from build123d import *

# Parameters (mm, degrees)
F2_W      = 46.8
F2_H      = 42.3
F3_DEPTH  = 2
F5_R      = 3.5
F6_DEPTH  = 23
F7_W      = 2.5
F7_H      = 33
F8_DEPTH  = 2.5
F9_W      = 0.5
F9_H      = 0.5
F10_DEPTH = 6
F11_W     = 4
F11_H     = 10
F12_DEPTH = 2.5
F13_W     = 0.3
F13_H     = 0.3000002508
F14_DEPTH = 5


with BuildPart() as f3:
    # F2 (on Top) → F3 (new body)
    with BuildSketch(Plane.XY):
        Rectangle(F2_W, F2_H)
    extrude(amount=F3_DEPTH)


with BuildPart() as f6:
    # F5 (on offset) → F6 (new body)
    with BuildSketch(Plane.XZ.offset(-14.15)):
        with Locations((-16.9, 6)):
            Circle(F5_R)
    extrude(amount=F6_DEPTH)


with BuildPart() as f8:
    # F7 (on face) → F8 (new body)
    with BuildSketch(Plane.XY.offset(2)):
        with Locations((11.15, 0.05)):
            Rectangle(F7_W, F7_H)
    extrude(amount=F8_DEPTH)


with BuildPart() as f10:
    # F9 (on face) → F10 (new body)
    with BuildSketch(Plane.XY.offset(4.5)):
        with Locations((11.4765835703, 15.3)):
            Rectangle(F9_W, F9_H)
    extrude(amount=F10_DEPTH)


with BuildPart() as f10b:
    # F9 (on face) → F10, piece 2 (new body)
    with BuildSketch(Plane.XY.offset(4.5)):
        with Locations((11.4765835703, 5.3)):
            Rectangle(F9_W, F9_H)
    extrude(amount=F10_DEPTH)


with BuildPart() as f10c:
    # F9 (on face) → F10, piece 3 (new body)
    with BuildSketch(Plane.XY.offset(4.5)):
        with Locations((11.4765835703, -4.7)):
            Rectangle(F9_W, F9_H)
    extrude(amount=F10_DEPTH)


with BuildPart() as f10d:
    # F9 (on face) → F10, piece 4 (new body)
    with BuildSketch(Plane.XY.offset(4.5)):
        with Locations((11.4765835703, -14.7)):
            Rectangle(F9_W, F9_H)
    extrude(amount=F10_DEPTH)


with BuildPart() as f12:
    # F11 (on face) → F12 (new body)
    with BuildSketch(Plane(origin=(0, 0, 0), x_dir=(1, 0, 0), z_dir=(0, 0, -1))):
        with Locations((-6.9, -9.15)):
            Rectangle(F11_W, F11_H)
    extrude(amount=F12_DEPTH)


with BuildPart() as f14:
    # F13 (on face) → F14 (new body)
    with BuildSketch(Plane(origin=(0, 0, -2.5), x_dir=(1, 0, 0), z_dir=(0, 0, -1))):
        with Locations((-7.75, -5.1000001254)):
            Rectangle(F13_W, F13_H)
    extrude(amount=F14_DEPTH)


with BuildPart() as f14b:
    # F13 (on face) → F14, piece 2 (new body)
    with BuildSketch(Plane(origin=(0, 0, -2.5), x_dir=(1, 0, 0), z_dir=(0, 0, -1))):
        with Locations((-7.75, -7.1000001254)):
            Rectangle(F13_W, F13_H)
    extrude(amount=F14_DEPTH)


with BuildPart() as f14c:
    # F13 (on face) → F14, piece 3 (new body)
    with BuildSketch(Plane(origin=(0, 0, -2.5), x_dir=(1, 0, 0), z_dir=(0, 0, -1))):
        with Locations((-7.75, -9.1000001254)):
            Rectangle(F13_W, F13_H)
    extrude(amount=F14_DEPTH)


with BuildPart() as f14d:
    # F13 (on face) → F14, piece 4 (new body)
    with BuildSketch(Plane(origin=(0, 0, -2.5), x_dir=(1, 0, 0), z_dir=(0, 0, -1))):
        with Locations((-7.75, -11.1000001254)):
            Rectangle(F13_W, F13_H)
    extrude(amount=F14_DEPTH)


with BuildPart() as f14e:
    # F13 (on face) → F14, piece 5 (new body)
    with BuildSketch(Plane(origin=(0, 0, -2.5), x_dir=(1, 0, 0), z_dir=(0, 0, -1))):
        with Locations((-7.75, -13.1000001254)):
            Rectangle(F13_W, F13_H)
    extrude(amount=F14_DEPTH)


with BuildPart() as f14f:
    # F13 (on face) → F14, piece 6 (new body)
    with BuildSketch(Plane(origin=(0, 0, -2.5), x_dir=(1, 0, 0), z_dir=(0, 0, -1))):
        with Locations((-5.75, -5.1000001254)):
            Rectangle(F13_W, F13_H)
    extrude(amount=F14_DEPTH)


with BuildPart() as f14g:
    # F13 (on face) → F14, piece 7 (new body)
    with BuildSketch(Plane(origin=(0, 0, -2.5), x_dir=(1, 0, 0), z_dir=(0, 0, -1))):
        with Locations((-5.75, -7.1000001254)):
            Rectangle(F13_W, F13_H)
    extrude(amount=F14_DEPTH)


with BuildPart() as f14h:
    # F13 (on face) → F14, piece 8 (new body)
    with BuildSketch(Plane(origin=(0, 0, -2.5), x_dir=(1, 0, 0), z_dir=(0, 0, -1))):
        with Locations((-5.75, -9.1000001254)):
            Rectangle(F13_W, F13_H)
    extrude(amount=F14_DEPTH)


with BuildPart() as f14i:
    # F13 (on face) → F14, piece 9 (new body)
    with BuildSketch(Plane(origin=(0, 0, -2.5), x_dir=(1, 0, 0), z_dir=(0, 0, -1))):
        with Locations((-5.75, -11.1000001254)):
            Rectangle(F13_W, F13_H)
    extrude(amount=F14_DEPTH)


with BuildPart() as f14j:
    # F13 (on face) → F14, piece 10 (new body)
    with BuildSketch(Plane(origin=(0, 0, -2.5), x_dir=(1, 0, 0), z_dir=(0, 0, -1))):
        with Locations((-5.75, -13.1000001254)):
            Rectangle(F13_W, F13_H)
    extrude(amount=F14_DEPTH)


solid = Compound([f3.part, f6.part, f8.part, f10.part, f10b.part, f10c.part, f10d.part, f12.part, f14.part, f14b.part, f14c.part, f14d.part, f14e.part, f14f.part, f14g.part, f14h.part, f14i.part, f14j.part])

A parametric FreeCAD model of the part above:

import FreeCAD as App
import Part
import Sketcher
from FreeCAD import Vector


def add_polygon(sketch, points):
    """Adds a closed chain of lines whose ends are joined by coincident constraints."""
    first, n = sketch.GeometryCount, len(points)
    for a, b in zip(points, points[1:] + points[:1]):
        sketch.addGeometry(Part.LineSegment(App.Vector(*a, 0), App.Vector(*b, 0)), False)
    for i in range(n):
        sketch.addConstraint(Sketcher.Constraint("Coincident", first + i, 2, first + (i + 1) % n, 1))

doc = App.newDocument("Part")
params = doc.addObject("Spreadsheet::Sheet", "Params")
for row, (alias, value) in enumerate([
    ("sketch1_width", "46.8 mm"),
    ("sketch1_height", "42.3 mm"),
    ("pad1_length", "2 mm"),
    ("sketch2_diameter", "7 mm"),
    ("pad2_length", "23 mm"),
    ("sketch3_height", "33 mm"),
    ("sketch3_width", "2.5 mm"),
    ("pad3_length", "2.5 mm"),
    ("sketch4_width", "0.5 mm"),
    ("pad4_length", "6 mm"),
    ("sketch5_width", "0.5 mm"),
    ("pad5_length", "6 mm"),
    ("sketch6_width", "0.5 mm"),
    ("pad6_length", "6 mm"),
    ("sketch7_width", "0.5 mm"),
    ("pad7_length", "6 mm"),
    ("sketch8_width", "4 mm"),
    ("sketch8_height", "10 mm"),
    ("pad8_length", "2.5 mm"),
    ("sketch9_width", "0.3 mm"),
    ("pad9_length", "5 mm"),
    ("sketch10_width", "0.3 mm"),
    ("pad10_length", "5 mm"),
    ("sketch11_width", "0.3 mm"),
    ("pad11_length", "5 mm"),
    ("sketch12_width", "0.3 mm"),
    ("pad12_length", "5 mm"),
    ("sketch13_width", "0.3 mm"),
    ("pad13_length", "5 mm"),
    ("sketch14_width", "0.3 mm"),
    ("pad14_length", "5 mm"),
    ("sketch15_width", "0.3 mm"),
    ("pad15_length", "5 mm"),
    ("sketch16_width", "0.3 mm"),
    ("pad16_length", "5 mm"),
    ("sketch17_width", "0.3 mm"),
    ("pad17_length", "5 mm"),
    ("sketch18_width", "0.3 mm"),
    ("pad18_length", "5 mm"),
], start=1):
    params.set(f"A{row}", alias)
    params.set(f"B{row}", "=" + value)
    params.setAlias(f"B{row}", alias)

body = doc.addObject("PartDesign::Body", "Body")

# Sketch on XY plane
sketch1 = body.newObject("Sketcher::SketchObject", "Sketch")
sketch1.AttachmentSupport = (doc.getObject("XY_Plane"), [""])
sketch1.MapMode = "FlatFace"
add_polygon(sketch1, [(-23.4, 21.15), (-23.4, -21.15), (23.4, -21.15), (23.4, 21.15)])  # lines 0-3
sketch1.addConstraint(Sketcher.Constraint("Vertical", 0))
sketch1.addConstraint(Sketcher.Constraint("Horizontal", 1))
sketch1.addConstraint(Sketcher.Constraint("Vertical", 2))
sketch1.addConstraint(Sketcher.Constraint("Horizontal", 3))
sketch1.addConstraint(Sketcher.Constraint("Symmetric", 0, 2, 2, 2, -1, 1))
sketch1.addConstraint(Sketcher.Constraint("DistanceX", 1, 1, 1, 2, 46.8))
sketch1.addConstraint(Sketcher.Constraint("DistanceY", 0, 2, 0, 1, 42.3))
sketch1.setExpression("Constraints[9]", "Params.sketch1_width")
sketch1.setExpression("Constraints[10]", "Params.sketch1_height")
pad1 = body.newObject("PartDesign::Pad", "Pad")
pad1.Profile = sketch1
pad1.setExpression("Length", "Params.pad1_length")
body2 = doc.addObject("PartDesign::Body", "Body001")

# Sketch on XZ plane
sketch2 = body2.newObject("Sketcher::SketchObject", "Sketch001")
sketch2.AttachmentSupport = (doc.getObject("XZ_Plane001"), [""])
sketch2.MapMode = "FlatFace"
sketch2.AttachmentOffset = App.Placement(Vector(0, 0, -14.15), App.Rotation())
sketch2.addGeometry(Part.Circle(Vector(-16.9, 6, 0), Vector(0, 0, 1), 3.5), False)
sketch2.addConstraint(Sketcher.Constraint("Diameter", 0, 7.0))
sketch2.addConstraint(Sketcher.Constraint("DistanceY", -1, 1, 0, 3, 6.0))
sketch2.addConstraint(Sketcher.Constraint("DistanceX", 0, 3, -1, 1, 16.9))
sketch2.setExpression("Constraints[0]", "Params.sketch2_diameter")
pad2 = body2.newObject("PartDesign::Pad", "Pad001")
pad2.Profile = sketch2
pad2.setExpression("Length", "Params.pad2_length")
body3 = doc.addObject("PartDesign::Body", "Body002")

# Sketch on XY plane
sketch3 = body3.newObject("Sketcher::SketchObject", "Sketch002")
sketch3.AttachmentSupport = (doc.getObject("XY_Plane002"), [""])
sketch3.MapMode = "FlatFace"
sketch3.AttachmentOffset = App.Placement(Vector(0, 0, 2), App.Rotation())
add_polygon(sketch3, [(9.9, 16.55), (9.9, -16.45), (12.4, -16.45), (12.4, 16.55)])  # lines 0-3
sketch3.addConstraint(Sketcher.Constraint("Vertical", 0))
sketch3.addConstraint(Sketcher.Constraint("Horizontal", 1))
sketch3.addConstraint(Sketcher.Constraint("Vertical", 2))
sketch3.addConstraint(Sketcher.Constraint("Horizontal", 3))
sketch3.addConstraint(Sketcher.Constraint("DistanceY", 0, 2, 0, 1, 33.0))
sketch3.addConstraint(Sketcher.Constraint("DistanceX", 1, 1, 1, 2, 2.5))
sketch3.addConstraint(Sketcher.Constraint("DistanceX", -1, 1, 0, 2, 9.9))
sketch3.addConstraint(Sketcher.Constraint("DistanceY", 0, 2, -1, 1, 16.45))
sketch3.setExpression("Constraints[8]", "Params.sketch3_height")
sketch3.setExpression("Constraints[9]", "Params.sketch3_width")
pad3 = body3.newObject("PartDesign::Pad", "Pad002")
pad3.Profile = sketch3
pad3.setExpression("Length", "Params.pad3_length")
body4 = doc.addObject("PartDesign::Body", "Body003")

# Sketch on XY plane
sketch4 = body4.newObject("Sketcher::SketchObject", "Sketch003")
sketch4.AttachmentSupport = (doc.getObject("XY_Plane003"), [""])
sketch4.MapMode = "FlatFace"
sketch4.AttachmentOffset = App.Placement(Vector(0, 0, 4.5), App.Rotation())
add_polygon(sketch4, [(11.226584, 15.55), (11.226584, 15.05), (11.726584, 15.05), (11.726584, 15.55)])  # lines 0-3
sketch4.addConstraint(Sketcher.Constraint("Vertical", 0))
sketch4.addConstraint(Sketcher.Constraint("Horizontal", 1))
sketch4.addConstraint(Sketcher.Constraint("Vertical", 2))
sketch4.addConstraint(Sketcher.Constraint("Horizontal", 3))
sketch4.addConstraint(Sketcher.Constraint("Equal", 3, 0))
sketch4.addConstraint(Sketcher.Constraint("DistanceX", 1, 1, 1, 2, 0.5))
sketch4.addConstraint(Sketcher.Constraint("DistanceY", -1, 1, 0, 2, 15.05))
sketch4.addConstraint(Sketcher.Constraint("DistanceX", -1, 1, 0, 2, 11.226584))
sketch4.setExpression("Constraints[9]", "Params.sketch4_width")
pad4 = body4.newObject("PartDesign::Pad", "Pad003")
pad4.Profile = sketch4
pad4.setExpression("Length", "Params.pad4_length")
body5 = doc.addObject("PartDesign::Body", "Body004")

# Sketch on XY plane
sketch5 = body5.newObject("Sketcher::SketchObject", "Sketch004")
sketch5.AttachmentSupport = (doc.getObject("XY_Plane004"), [""])
sketch5.MapMode = "FlatFace"
sketch5.AttachmentOffset = App.Placement(Vector(0, 0, 4.5), App.Rotation())
add_polygon(sketch5, [(11.226584, 5.55), (11.226584, 5.05), (11.726584, 5.05), (11.726584, 5.55)])  # lines 0-3
sketch5.addConstraint(Sketcher.Constraint("Vertical", 0))
sketch5.addConstraint(Sketcher.Constraint("Horizontal", 1))
sketch5.addConstraint(Sketcher.Constraint("Vertical", 2))
sketch5.addConstraint(Sketcher.Constraint("Horizontal", 3))
sketch5.addConstraint(Sketcher.Constraint("Equal", 3, 0))
sketch5.addConstraint(Sketcher.Constraint("DistanceX", 1, 1, 1, 2, 0.5))
sketch5.addConstraint(Sketcher.Constraint("DistanceY", -1, 1, 0, 2, 5.05))
sketch5.addConstraint(Sketcher.Constraint("DistanceX", -1, 1, 0, 2, 11.226584))
sketch5.setExpression("Constraints[9]", "Params.sketch5_width")
pad5 = body5.newObject("PartDesign::Pad", "Pad004")
pad5.Profile = sketch5
pad5.setExpression("Length", "Params.pad5_length")
body6 = doc.addObject("PartDesign::Body", "Body005")

# Sketch on XY plane
sketch6 = body6.newObject("Sketcher::SketchObject", "Sketch005")
sketch6.AttachmentSupport = (doc.getObject("XY_Plane005"), [""])
sketch6.MapMode = "FlatFace"
sketch6.AttachmentOffset = App.Placement(Vector(0, 0, 4.5), App.Rotation())
add_polygon(sketch6, [(11.226584, -4.45), (11.226584, -4.95), (11.726584, -4.95), (11.726584, -4.45)])  # lines 0-3
sketch6.addConstraint(Sketcher.Constraint("Vertical", 0))
sketch6.addConstraint(Sketcher.Constraint("Horizontal", 1))
sketch6.addConstraint(Sketcher.Constraint("Vertical", 2))
sketch6.addConstraint(Sketcher.Constraint("Horizontal", 3))
sketch6.addConstraint(Sketcher.Constraint("Equal", 3, 0))
sketch6.addConstraint(Sketcher.Constraint("DistanceX", 1, 1, 1, 2, 0.5))
sketch6.addConstraint(Sketcher.Constraint("DistanceY", 0, 2, -1, 1, 4.95))
sketch6.addConstraint(Sketcher.Constraint("DistanceX", -1, 1, 0, 2, 11.226584))
sketch6.setExpression("Constraints[9]", "Params.sketch6_width")
pad6 = body6.newObject("PartDesign::Pad", "Pad005")
pad6.Profile = sketch6
pad6.setExpression("Length", "Params.pad6_length")
body7 = doc.addObject("PartDesign::Body", "Body006")

# Sketch on XY plane
sketch7 = body7.newObject("Sketcher::SketchObject", "Sketch006")
sketch7.AttachmentSupport = (doc.getObject("XY_Plane006"), [""])
sketch7.MapMode = "FlatFace"
sketch7.AttachmentOffset = App.Placement(Vector(0, 0, 4.5), App.Rotation())
add_polygon(sketch7, [(11.226584, -14.45), (11.226584, -14.95), (11.726584, -14.95), (11.726584, -14.45)])  # lines 0-3
sketch7.addConstraint(Sketcher.Constraint("Vertical", 0))
sketch7.addConstraint(Sketcher.Constraint("Horizontal", 1))
sketch7.addConstraint(Sketcher.Constraint("Vertical", 2))
sketch7.addConstraint(Sketcher.Constraint("Horizontal", 3))
sketch7.addConstraint(Sketcher.Constraint("Equal", 3, 0))
sketch7.addConstraint(Sketcher.Constraint("DistanceX", 1, 1, 1, 2, 0.5))
sketch7.addConstraint(Sketcher.Constraint("DistanceY", 0, 2, -1, 1, 14.95))
sketch7.addConstraint(Sketcher.Constraint("DistanceX", -1, 1, 0, 2, 11.226584))
sketch7.setExpression("Constraints[9]", "Params.sketch7_width")
pad7 = body7.newObject("PartDesign::Pad", "Pad006")
pad7.Profile = sketch7
pad7.setExpression("Length", "Params.pad7_length")
body8 = doc.addObject("PartDesign::Body", "Body007")

# Sketch on XY plane
sketch8 = body8.newObject("Sketcher::SketchObject", "Sketch007")
sketch8.AttachmentSupport = (doc.getObject("XY_Plane007"), [""])
sketch8.MapMode = "FlatFace"
add_polygon(sketch8, [(-8.9, 4.15), (-8.9, 14.15), (-4.9, 14.15), (-4.9, 4.15)])  # lines 0-3
sketch8.addConstraint(Sketcher.Constraint("Vertical", 0))
sketch8.addConstraint(Sketcher.Constraint("Horizontal", 1))
sketch8.addConstraint(Sketcher.Constraint("Vertical", 2))
sketch8.addConstraint(Sketcher.Constraint("Horizontal", 3))
sketch8.addConstraint(Sketcher.Constraint("DistanceX", 1, 1, 1, 2, 4.0))
sketch8.addConstraint(Sketcher.Constraint("DistanceY", 0, 1, 0, 2, 10.0))
sketch8.addConstraint(Sketcher.Constraint("DistanceX", 0, 2, -1, 1, 8.9))
sketch8.addConstraint(Sketcher.Constraint("DistanceY", -1, 1, 0, 2, 14.15))
sketch8.setExpression("Constraints[8]", "Params.sketch8_width")
sketch8.setExpression("Constraints[9]", "Params.sketch8_height")
pad8 = body8.newObject("PartDesign::Pad", "Pad007")
pad8.Profile = sketch8
pad8.setExpression("Length", "Params.pad8_length")
pad8.Reversed = True
body9 = doc.addObject("PartDesign::Body", "Body008")

# Sketch on XY plane
sketch9 = body9.newObject("Sketcher::SketchObject", "Sketch008")
sketch9.AttachmentSupport = (doc.getObject("XY_Plane008"), [""])
sketch9.MapMode = "FlatFace"
sketch9.AttachmentOffset = App.Placement(Vector(0, 0, -2.5), App.Rotation())
add_polygon(sketch9, [(-7.9, 4.95), (-7.9, 5.25), (-7.6, 5.25), (-7.6, 4.95)])  # lines 0-3
sketch9.addConstraint(Sketcher.Constraint("Vertical", 0))
sketch9.addConstraint(Sketcher.Constraint("Horizontal", 1))
sketch9.addConstraint(Sketcher.Constraint("Vertical", 2))
sketch9.addConstraint(Sketcher.Constraint("Horizontal", 3))
sketch9.addConstraint(Sketcher.Constraint("Equal", 3, 0))
sketch9.addConstraint(Sketcher.Constraint("DistanceX", 1, 1, 1, 2, 0.3))
sketch9.addConstraint(Sketcher.Constraint("DistanceX", 0, 2, -1, 1, 7.9))
sketch9.addConstraint(Sketcher.Constraint("DistanceY", -1, 1, 0, 2, 5.25))
sketch9.setExpression("Constraints[9]", "Params.sketch9_width")
pad9 = body9.newObject("PartDesign::Pad", "Pad008")
pad9.Profile = sketch9
pad9.setExpression("Length", "Params.pad9_length")
pad9.Reversed = True
body10 = doc.addObject("PartDesign::Body", "Body009")

# Sketch on XY plane
sketch10 = body10.newObject("Sketcher::SketchObject", "Sketch009")
sketch10.AttachmentSupport = (doc.getObject("XY_Plane009"), [""])
sketch10.MapMode = "FlatFace"
sketch10.AttachmentOffset = App.Placement(Vector(0, 0, -2.5), App.Rotation())
add_polygon(sketch10, [(-7.9, 6.95), (-7.9, 7.25), (-7.6, 7.25), (-7.6, 6.95)])  # lines 0-3
sketch10.addConstraint(Sketcher.Constraint("Vertical", 0))
sketch10.addConstraint(Sketcher.Constraint("Horizontal", 1))
sketch10.addConstraint(Sketcher.Constraint("Vertical", 2))
sketch10.addConstraint(Sketcher.Constraint("Horizontal", 3))
sketch10.addConstraint(Sketcher.Constraint("Equal", 3, 0))
sketch10.addConstraint(Sketcher.Constraint("DistanceX", 1, 1, 1, 2, 0.3))
sketch10.addConstraint(Sketcher.Constraint("DistanceX", 0, 2, -1, 1, 7.9))
sketch10.addConstraint(Sketcher.Constraint("DistanceY", -1, 1, 0, 2, 7.25))
sketch10.setExpression("Constraints[9]", "Params.sketch10_width")
pad10 = body10.newObject("PartDesign::Pad", "Pad009")
pad10.Profile = sketch10
pad10.setExpression("Length", "Params.pad10_length")
pad10.Reversed = True
body11 = doc.addObject("PartDesign::Body", "Body010")

# Sketch on XY plane
sketch11 = body11.newObject("Sketcher::SketchObject", "Sketch010")
sketch11.AttachmentSupport = (doc.getObject("XY_Plane010"), [""])
sketch11.MapMode = "FlatFace"
sketch11.AttachmentOffset = App.Placement(Vector(0, 0, -2.5), App.Rotation())
add_polygon(sketch11, [(-7.9, 8.95), (-7.9, 9.25), (-7.6, 9.25), (-7.6, 8.95)])  # lines 0-3
sketch11.addConstraint(Sketcher.Constraint("Vertical", 0))
sketch11.addConstraint(Sketcher.Constraint("Horizontal", 1))
sketch11.addConstraint(Sketcher.Constraint("Vertical", 2))
sketch11.addConstraint(Sketcher.Constraint("Horizontal", 3))
sketch11.addConstraint(Sketcher.Constraint("Equal", 3, 0))
sketch11.addConstraint(Sketcher.Constraint("DistanceX", 1, 1, 1, 2, 0.3))
sketch11.addConstraint(Sketcher.Constraint("DistanceX", 0, 2, -1, 1, 7.9))
sketch11.addConstraint(Sketcher.Constraint("DistanceY", -1, 1, 0, 2, 9.25))
sketch11.setExpression("Constraints[9]", "Params.sketch11_width")
pad11 = body11.newObject("PartDesign::Pad", "Pad010")
pad11.Profile = sketch11
pad11.setExpression("Length", "Params.pad11_length")
pad11.Reversed = True
body12 = doc.addObject("PartDesign::Body", "Body011")

# Sketch on XY plane
sketch12 = body12.newObject("Sketcher::SketchObject", "Sketch011")
sketch12.AttachmentSupport = (doc.getObject("XY_Plane011"), [""])
sketch12.MapMode = "FlatFace"
sketch12.AttachmentOffset = App.Placement(Vector(0, 0, -2.5), App.Rotation())
add_polygon(sketch12, [(-7.9, 10.95), (-7.9, 11.25), (-7.6, 11.25), (-7.6, 10.95)])  # lines 0-3
sketch12.addConstraint(Sketcher.Constraint("Vertical", 0))
sketch12.addConstraint(Sketcher.Constraint("Horizontal", 1))
sketch12.addConstraint(Sketcher.Constraint("Vertical", 2))
sketch12.addConstraint(Sketcher.Constraint("Horizontal", 3))
sketch12.addConstraint(Sketcher.Constraint("Equal", 3, 0))
sketch12.addConstraint(Sketcher.Constraint("DistanceX", 1, 1, 1, 2, 0.3))
sketch12.addConstraint(Sketcher.Constraint("DistanceX", 0, 2, -1, 1, 7.9))
sketch12.addConstraint(Sketcher.Constraint("DistanceY", -1, 1, 0, 2, 11.25))
sketch12.setExpression("Constraints[9]", "Params.sketch12_width")
pad12 = body12.newObject("PartDesign::Pad", "Pad011")
pad12.Profile = sketch12
pad12.setExpression("Length", "Params.pad12_length")
pad12.Reversed = True
body13 = doc.addObject("PartDesign::Body", "Body012")

# Sketch on XY plane
sketch13 = body13.newObject("Sketcher::SketchObject", "Sketch012")
sketch13.AttachmentSupport = (doc.getObject("XY_Plane012"), [""])
sketch13.MapMode = "FlatFace"
sketch13.AttachmentOffset = App.Placement(Vector(0, 0, -2.5), App.Rotation())
add_polygon(sketch13, [(-7.9, 12.95), (-7.9, 13.25), (-7.6, 13.25), (-7.6, 12.95)])  # lines 0-3
sketch13.addConstraint(Sketcher.Constraint("Vertical", 0))
sketch13.addConstraint(Sketcher.Constraint("Horizontal", 1))
sketch13.addConstraint(Sketcher.Constraint("Vertical", 2))
sketch13.addConstraint(Sketcher.Constraint("Horizontal", 3))
sketch13.addConstraint(Sketcher.Constraint("Equal", 3, 0))
sketch13.addConstraint(Sketcher.Constraint("DistanceX", 1, 1, 1, 2, 0.3))
sketch13.addConstraint(Sketcher.Constraint("DistanceX", 0, 2, -1, 1, 7.9))
sketch13.addConstraint(Sketcher.Constraint("DistanceY", -1, 1, 0, 2, 13.25))
sketch13.setExpression("Constraints[9]", "Params.sketch13_width")
pad13 = body13.newObject("PartDesign::Pad", "Pad012")
pad13.Profile = sketch13
pad13.setExpression("Length", "Params.pad13_length")
pad13.Reversed = True
body14 = doc.addObject("PartDesign::Body", "Body013")

# Sketch on XY plane
sketch14 = body14.newObject("Sketcher::SketchObject", "Sketch013")
sketch14.AttachmentSupport = (doc.getObject("XY_Plane013"), [""])
sketch14.MapMode = "FlatFace"
sketch14.AttachmentOffset = App.Placement(Vector(0, 0, -2.5), App.Rotation())
add_polygon(sketch14, [(-5.9, 4.95), (-5.9, 5.25), (-5.6, 5.25), (-5.6, 4.95)])  # lines 0-3
sketch14.addConstraint(Sketcher.Constraint("Vertical", 0))
sketch14.addConstraint(Sketcher.Constraint("Horizontal", 1))
sketch14.addConstraint(Sketcher.Constraint("Vertical", 2))
sketch14.addConstraint(Sketcher.Constraint("Horizontal", 3))
sketch14.addConstraint(Sketcher.Constraint("Equal", 3, 0))
sketch14.addConstraint(Sketcher.Constraint("DistanceX", 1, 1, 1, 2, 0.3))
sketch14.addConstraint(Sketcher.Constraint("DistanceX", 0, 2, -1, 1, 5.9))
sketch14.addConstraint(Sketcher.Constraint("DistanceY", -1, 1, 0, 2, 5.25))
sketch14.setExpression("Constraints[9]", "Params.sketch14_width")
pad14 = body14.newObject("PartDesign::Pad", "Pad013")
pad14.Profile = sketch14
pad14.setExpression("Length", "Params.pad14_length")
pad14.Reversed = True
body15 = doc.addObject("PartDesign::Body", "Body014")

# Sketch on XY plane
sketch15 = body15.newObject("Sketcher::SketchObject", "Sketch014")
sketch15.AttachmentSupport = (doc.getObject("XY_Plane014"), [""])
sketch15.MapMode = "FlatFace"
sketch15.AttachmentOffset = App.Placement(Vector(0, 0, -2.5), App.Rotation())
add_polygon(sketch15, [(-5.9, 6.95), (-5.9, 7.25), (-5.6, 7.25), (-5.6, 6.95)])  # lines 0-3
sketch15.addConstraint(Sketcher.Constraint("Vertical", 0))
sketch15.addConstraint(Sketcher.Constraint("Horizontal", 1))
sketch15.addConstraint(Sketcher.Constraint("Vertical", 2))
sketch15.addConstraint(Sketcher.Constraint("Horizontal", 3))
sketch15.addConstraint(Sketcher.Constraint("Equal", 3, 0))
sketch15.addConstraint(Sketcher.Constraint("DistanceX", 1, 1, 1, 2, 0.3))
sketch15.addConstraint(Sketcher.Constraint("DistanceX", 0, 2, -1, 1, 5.9))
sketch15.addConstraint(Sketcher.Constraint("DistanceY", -1, 1, 0, 2, 7.25))
sketch15.setExpression("Constraints[9]", "Params.sketch15_width")
pad15 = body15.newObject("PartDesign::Pad", "Pad014")
pad15.Profile = sketch15
pad15.setExpression("Length", "Params.pad15_length")
pad15.Reversed = True
body16 = doc.addObject("PartDesign::Body", "Body015")

# Sketch on XY plane
sketch16 = body16.newObject("Sketcher::SketchObject", "Sketch015")
sketch16.AttachmentSupport = (doc.getObject("XY_Plane015"), [""])
sketch16.MapMode = "FlatFace"
sketch16.AttachmentOffset = App.Placement(Vector(0, 0, -2.5), App.Rotation())
add_polygon(sketch16, [(-5.9, 8.95), (-5.9, 9.25), (-5.6, 9.25), (-5.6, 8.95)])  # lines 0-3
sketch16.addConstraint(Sketcher.Constraint("Vertical", 0))
sketch16.addConstraint(Sketcher.Constraint("Horizontal", 1))
sketch16.addConstraint(Sketcher.Constraint("Vertical", 2))
sketch16.addConstraint(Sketcher.Constraint("Horizontal", 3))
sketch16.addConstraint(Sketcher.Constraint("Equal", 3, 0))
sketch16.addConstraint(Sketcher.Constraint("DistanceX", 1, 1, 1, 2, 0.3))
sketch16.addConstraint(Sketcher.Constraint("DistanceX", 0, 2, -1, 1, 5.9))
sketch16.addConstraint(Sketcher.Constraint("DistanceY", -1, 1, 0, 2, 9.25))
sketch16.setExpression("Constraints[9]", "Params.sketch16_width")
pad16 = body16.newObject("PartDesign::Pad", "Pad015")
pad16.Profile = sketch16
pad16.setExpression("Length", "Params.pad16_length")
pad16.Reversed = True
body17 = doc.addObject("PartDesign::Body", "Body016")

# Sketch on XY plane
sketch17 = body17.newObject("Sketcher::SketchObject", "Sketch016")
sketch17.AttachmentSupport = (doc.getObject("XY_Plane016"), [""])
sketch17.MapMode = "FlatFace"
sketch17.AttachmentOffset = App.Placement(Vector(0, 0, -2.5), App.Rotation())
add_polygon(sketch17, [(-5.9, 10.95), (-5.9, 11.25), (-5.6, 11.25), (-5.6, 10.95)])  # lines 0-3
sketch17.addConstraint(Sketcher.Constraint("Vertical", 0))
sketch17.addConstraint(Sketcher.Constraint("Horizontal", 1))
sketch17.addConstraint(Sketcher.Constraint("Vertical", 2))
sketch17.addConstraint(Sketcher.Constraint("Horizontal", 3))
sketch17.addConstraint(Sketcher.Constraint("Equal", 3, 0))
sketch17.addConstraint(Sketcher.Constraint("DistanceX", 1, 1, 1, 2, 0.3))
sketch17.addConstraint(Sketcher.Constraint("DistanceX", 0, 2, -1, 1, 5.9))
sketch17.addConstraint(Sketcher.Constraint("DistanceY", -1, 1, 0, 2, 11.25))
sketch17.setExpression("Constraints[9]", "Params.sketch17_width")
pad17 = body17.newObject("PartDesign::Pad", "Pad016")
pad17.Profile = sketch17
pad17.setExpression("Length", "Params.pad17_length")
pad17.Reversed = True
body18 = doc.addObject("PartDesign::Body", "Body017")

# Sketch on XY plane
sketch18 = body18.newObject("Sketcher::SketchObject", "Sketch017")
sketch18.AttachmentSupport = (doc.getObject("XY_Plane017"), [""])
sketch18.MapMode = "FlatFace"
sketch18.AttachmentOffset = App.Placement(Vector(0, 0, -2.5), App.Rotation())
add_polygon(sketch18, [(-5.9, 12.95), (-5.9, 13.25), (-5.6, 13.25), (-5.6, 12.95)])  # lines 0-3
sketch18.addConstraint(Sketcher.Constraint("Vertical", 0))
sketch18.addConstraint(Sketcher.Constraint("Horizontal", 1))
sketch18.addConstraint(Sketcher.Constraint("Vertical", 2))
sketch18.addConstraint(Sketcher.Constraint("Horizontal", 3))
sketch18.addConstraint(Sketcher.Constraint("Equal", 3, 0))
sketch18.addConstraint(Sketcher.Constraint("DistanceX", 1, 1, 1, 2, 0.3))
sketch18.addConstraint(Sketcher.Constraint("DistanceX", 0, 2, -1, 1, 5.9))
sketch18.addConstraint(Sketcher.Constraint("DistanceY", -1, 1, 0, 2, 13.25))
sketch18.setExpression("Constraints[9]", "Params.sketch18_width")
pad18 = body18.newObject("PartDesign::Pad", "Pad017")
pad18.Profile = sketch18
pad18.setExpression("Length", "Params.pad18_length")
pad18.Reversed = True

doc.recompute()
